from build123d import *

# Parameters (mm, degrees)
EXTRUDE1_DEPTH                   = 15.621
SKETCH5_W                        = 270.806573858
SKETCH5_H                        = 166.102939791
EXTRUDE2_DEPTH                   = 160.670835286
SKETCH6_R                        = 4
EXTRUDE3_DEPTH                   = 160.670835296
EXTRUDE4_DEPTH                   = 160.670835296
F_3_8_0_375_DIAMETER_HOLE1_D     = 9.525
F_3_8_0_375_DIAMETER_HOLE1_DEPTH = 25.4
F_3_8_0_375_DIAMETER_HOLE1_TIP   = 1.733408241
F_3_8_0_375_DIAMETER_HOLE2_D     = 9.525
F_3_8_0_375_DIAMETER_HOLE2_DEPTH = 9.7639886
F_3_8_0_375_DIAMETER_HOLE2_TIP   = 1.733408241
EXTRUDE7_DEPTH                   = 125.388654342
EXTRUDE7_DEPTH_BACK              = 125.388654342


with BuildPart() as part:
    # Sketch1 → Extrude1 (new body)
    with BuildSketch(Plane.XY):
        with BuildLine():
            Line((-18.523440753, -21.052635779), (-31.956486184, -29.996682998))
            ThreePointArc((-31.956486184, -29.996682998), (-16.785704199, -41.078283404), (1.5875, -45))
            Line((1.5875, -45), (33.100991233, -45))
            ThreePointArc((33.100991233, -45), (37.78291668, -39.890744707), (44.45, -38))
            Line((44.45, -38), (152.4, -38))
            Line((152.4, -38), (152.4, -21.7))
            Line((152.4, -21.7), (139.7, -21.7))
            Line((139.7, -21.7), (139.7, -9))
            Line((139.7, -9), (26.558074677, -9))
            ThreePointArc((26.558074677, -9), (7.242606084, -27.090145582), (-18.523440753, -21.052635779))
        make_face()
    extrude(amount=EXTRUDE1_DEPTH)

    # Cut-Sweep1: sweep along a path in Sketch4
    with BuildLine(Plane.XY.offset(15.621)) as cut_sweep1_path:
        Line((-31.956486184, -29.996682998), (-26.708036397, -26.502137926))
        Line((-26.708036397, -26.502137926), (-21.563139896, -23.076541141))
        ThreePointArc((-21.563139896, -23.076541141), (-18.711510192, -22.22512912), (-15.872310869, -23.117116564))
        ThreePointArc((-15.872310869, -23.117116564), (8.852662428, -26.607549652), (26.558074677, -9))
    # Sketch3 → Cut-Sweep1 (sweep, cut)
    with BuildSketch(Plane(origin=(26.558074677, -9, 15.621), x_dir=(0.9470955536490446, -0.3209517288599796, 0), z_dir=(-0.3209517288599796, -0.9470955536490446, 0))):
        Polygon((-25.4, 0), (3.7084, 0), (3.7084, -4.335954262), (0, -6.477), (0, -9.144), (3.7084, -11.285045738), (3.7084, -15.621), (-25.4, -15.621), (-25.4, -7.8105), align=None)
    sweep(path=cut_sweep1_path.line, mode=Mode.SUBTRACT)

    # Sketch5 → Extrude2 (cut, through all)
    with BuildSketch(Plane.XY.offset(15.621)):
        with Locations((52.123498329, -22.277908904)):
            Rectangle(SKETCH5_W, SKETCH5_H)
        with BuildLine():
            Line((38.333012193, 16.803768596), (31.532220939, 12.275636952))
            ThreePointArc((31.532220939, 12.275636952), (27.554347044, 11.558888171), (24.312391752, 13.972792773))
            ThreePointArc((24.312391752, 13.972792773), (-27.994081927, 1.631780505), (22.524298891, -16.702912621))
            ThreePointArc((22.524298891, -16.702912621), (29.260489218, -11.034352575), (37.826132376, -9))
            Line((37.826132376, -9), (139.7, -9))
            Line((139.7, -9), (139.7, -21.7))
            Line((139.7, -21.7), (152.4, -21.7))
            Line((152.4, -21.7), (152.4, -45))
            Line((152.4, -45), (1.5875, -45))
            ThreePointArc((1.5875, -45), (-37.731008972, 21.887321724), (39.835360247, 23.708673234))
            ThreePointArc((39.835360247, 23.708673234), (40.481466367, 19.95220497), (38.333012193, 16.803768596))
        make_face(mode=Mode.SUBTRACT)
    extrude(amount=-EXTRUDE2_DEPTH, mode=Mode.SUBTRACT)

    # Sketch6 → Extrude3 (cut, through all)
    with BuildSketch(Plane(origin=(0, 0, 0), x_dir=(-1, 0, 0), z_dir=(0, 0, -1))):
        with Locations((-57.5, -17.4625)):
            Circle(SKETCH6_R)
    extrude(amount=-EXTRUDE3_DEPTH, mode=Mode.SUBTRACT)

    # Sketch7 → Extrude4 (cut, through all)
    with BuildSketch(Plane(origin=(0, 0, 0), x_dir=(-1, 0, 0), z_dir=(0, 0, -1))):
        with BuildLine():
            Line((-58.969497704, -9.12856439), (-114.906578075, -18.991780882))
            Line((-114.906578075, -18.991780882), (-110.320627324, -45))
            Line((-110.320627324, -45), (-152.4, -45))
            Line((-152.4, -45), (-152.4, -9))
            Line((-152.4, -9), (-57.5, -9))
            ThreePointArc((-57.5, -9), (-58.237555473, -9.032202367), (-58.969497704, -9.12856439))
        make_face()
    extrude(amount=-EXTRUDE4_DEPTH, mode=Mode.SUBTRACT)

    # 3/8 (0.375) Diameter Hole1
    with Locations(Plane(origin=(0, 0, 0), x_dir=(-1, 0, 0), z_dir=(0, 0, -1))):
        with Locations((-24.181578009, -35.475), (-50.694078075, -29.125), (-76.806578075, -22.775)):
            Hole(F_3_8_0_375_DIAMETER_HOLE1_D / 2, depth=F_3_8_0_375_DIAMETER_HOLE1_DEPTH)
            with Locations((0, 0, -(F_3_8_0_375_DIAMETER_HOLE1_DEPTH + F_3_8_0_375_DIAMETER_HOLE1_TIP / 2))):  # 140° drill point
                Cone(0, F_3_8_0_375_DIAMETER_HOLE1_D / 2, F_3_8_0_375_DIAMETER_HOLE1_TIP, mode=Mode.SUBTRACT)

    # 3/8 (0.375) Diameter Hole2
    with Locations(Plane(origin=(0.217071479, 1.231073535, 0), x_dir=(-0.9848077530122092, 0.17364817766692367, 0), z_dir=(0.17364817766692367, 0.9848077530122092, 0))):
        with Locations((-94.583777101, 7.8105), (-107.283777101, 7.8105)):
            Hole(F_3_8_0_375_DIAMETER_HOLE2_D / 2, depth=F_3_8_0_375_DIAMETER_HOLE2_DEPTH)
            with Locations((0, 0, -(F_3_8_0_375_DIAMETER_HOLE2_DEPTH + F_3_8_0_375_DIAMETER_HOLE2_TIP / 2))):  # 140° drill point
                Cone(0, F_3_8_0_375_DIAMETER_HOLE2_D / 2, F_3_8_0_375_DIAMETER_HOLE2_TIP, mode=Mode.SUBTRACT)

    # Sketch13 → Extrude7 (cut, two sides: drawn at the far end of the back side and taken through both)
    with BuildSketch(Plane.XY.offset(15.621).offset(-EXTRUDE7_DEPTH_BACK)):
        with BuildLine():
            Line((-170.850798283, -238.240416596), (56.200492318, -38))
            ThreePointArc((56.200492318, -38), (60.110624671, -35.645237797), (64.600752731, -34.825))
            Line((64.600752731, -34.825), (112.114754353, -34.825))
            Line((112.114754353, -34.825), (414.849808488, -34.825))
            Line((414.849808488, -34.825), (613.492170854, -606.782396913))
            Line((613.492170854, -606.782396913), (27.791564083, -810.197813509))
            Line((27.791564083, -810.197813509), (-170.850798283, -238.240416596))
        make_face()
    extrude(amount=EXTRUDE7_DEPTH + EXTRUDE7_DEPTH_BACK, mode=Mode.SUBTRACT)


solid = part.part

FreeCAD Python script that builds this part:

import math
import FreeCAD as App
import Part
import Sketcher
from FreeCAD import Vector
Q = App.Units.Quantity


def add_polygon(sketch, points):
    """Adds a closed chain of lines whose ends are joined by coincident constraints."""
    first, n = sketch.GeometryCount, len(points)
    for a, b in zip(points, points[1:] + points[:1]):
        sketch.addGeometry(Part.LineSegment(App.Vector(*a, 0), App.Vector(*b, 0)), False)
    for i in range(n):
        sketch.addConstraint(Sketcher.Constraint("Coincident", first + i, 2, first + (i + 1) % n, 1))

doc = App.newDocument("Part")
body = doc.addObject("PartDesign::Body", "Body")

# Sketch on XY plane
sketch1 = body.newObject("Sketcher::SketchObject", "Sketch")
sketch1.AttachmentSupport = (doc.getObject("XY_Plane"), [""])
sketch1.MapMode = "FlatFace"
sketch1.addGeometry(Part.LineSegment(Vector(-18.523441, -21.052636, 0), Vector(-31.956486, -29.996683, 0)), False)
sketch1.addGeometry(Part.ArcOfCircle(Part.Circle(Vector(1.5875, 0, 0), Vector(0, 0, 1), 45), math.radians(-138.195351), math.radians(-90)), False)
sketch1.addGeometry(Part.LineSegment(Vector(1.5875, -45, 0), Vector(33.100991, -45, 0)), False)
sketch1.addGeometry(Part.ArcOfCircle(Part.Circle(Vector(44.45, -50.7, 0), Vector(0, 0, 1), 12.7), math.radians(90), math.radians(153.332069)), False)
sketch1.addGeometry(Part.LineSegment(Vector(44.45, -38, 0), Vector(152.4, -38, 0)), False)
sketch1.addGeometry(Part.LineSegment(Vector(152.4, -38, 0), Vector(152.4, -21.7, 0)), False)
sketch1.addGeometry(Part.LineSegment(Vector(152.4, -21.7, 0), Vector(139.7, -21.7, 0)), False)
sketch1.addGeometry(Part.LineSegment(Vector(139.7, -21.7, 0), Vector(139.7, -9, 0)), False)
sketch1.addGeometry(Part.LineSegment(Vector(139.7, -9, 0), Vector(26.558075, -9, 0)), False)
sketch1.addGeometry(Part.ArcOfCircle(Part.Circle(Vector(0, 0, 0), Vector(0, 0, 1), 28.0416), math.radians(-131.343362), math.radians(-18.720491)), False)
sketch1.addConstraint(Sketcher.Constraint("Coincident", 0, 2, 1, 1))
sketch1.addConstraint(Sketcher.Constraint("Tangent", 1, 2, 2, 1))
sketch1.addConstraint(Sketcher.Constraint("Coincident", 2, 2, 3, 2))
sketch1.addConstraint(Sketcher.Constraint("Tangent", 3, 1, 4, 1))
sketch1.addConstraint(Sketcher.Constraint("Coincident", 4, 2, 5, 1))
sketch1.addConstraint(Sketcher.Constraint("Coincident", 5, 2, 6, 1))
sketch1.addConstraint(Sketcher.Constraint("Coincident", 6, 2, 7, 1))
sketch1.addConstraint(Sketcher.Constraint("Coincident", 7, 2, 8, 1))
sketch1.addConstraint(Sketcher.Constraint("Coincident", 8, 2, 9, 2))
sketch1.addConstraint(Sketcher.Constraint("Coincident", 9, 1, 0, 1))
sketch1.addConstraint(Sketcher.Constraint("Horizontal", 2))
sketch1.addConstraint(Sketcher.Constraint("Horizontal", 4))
sketch1.addConstraint(Sketcher.Constraint("Vertical", 5))
sketch1.addConstraint(Sketcher.Constraint("Horizontal", 6))
sketch1.addConstraint(Sketcher.Constraint("Vertical", 7))
sketch1.addConstraint(Sketcher.Constraint("Horizontal", 8))
sketch1.addConstraint(Sketcher.Constraint("Coincident", 9, 3, -1, 1))
sketch1.addConstraint(Sketcher.Constraint("PointOnObject", 1, 3, -1))
sketch1.addConstraint(Sketcher.Constraint("Equal", 6, 7))
sketch1.addConstraint(Sketcher.Constraint("Radius", 3, Q("0.5 in")))
sketch1.addConstraint(Sketcher.Constraint("DistanceX", 6, 2, 6, 1, Q("0.5 in")))
sketch1.addConstraint(Sketcher.Constraint("DistanceX", -1, 1, 4, 2, Q("6 in")))
sketch1.addConstraint(Sketcher.Constraint("Radius", 9, Q("1.104 in")))
sketch1.addConstraint(Sketcher.Constraint("DistanceX", 4, 1, 4, 2, Q("4.25 in")))
sketch1.addConstraint(Sketcher.Constraint("Radius", 1, 45.0))
sketch1.addConstraint(Sketcher.Constraint("DistanceX", -1, 1, 1, 3, Q("0.0625 in")))
sketch1.addConstraint(Sketcher.Constraint("DistanceY", 5, 1, 5, 2, 16.3))
sketch1.addConstraint(Sketcher.Constraint("DistanceX", 2, 1, 2, 2, 31.513491))
sketch1.addConstraint(Sketcher.Constraint("DistanceX", 9, 1, -1, 1, 18.523441))
sketch1.addConstraint(Sketcher.Constraint("Distance", 0, 16.138237))
pad1 = body.newObject("PartDesign::Pad", "Pad")
pad1.Profile = sketch1
pad1.Length = Q("0.615 in")

# Sketch on an angled plane
sketch2 = body.newObject("Sketcher::SketchObject", "Sketch001")
sketch2.Placement = App.Placement(Vector(26.558075, -9, 15.621), App.Rotation(Vector(0.947095554, -0.320951729, 0), Vector(0, 0, 1.000000001), Vector(-0.320951729, -0.947095554, 0), "ZXY"))
add_polygon(sketch2, [(3.7084, 0), (-25.4, 0), (-25.4, -15.621), (3.7084, -15.621), (3.7084, -11.285046), (0, -9.144), (0, -6.477), (3.7084, -4.335954)])  # lines 0-7
sketch2.addConstraint(Sketcher.Constraint("Horizontal", 0))
sketch2.addConstraint(Sketcher.Constraint("Vertical", 1))
sketch2.addConstraint(Sketcher.Constraint("Horizontal", 2))
sketch2.addConstraint(Sketcher.Constraint("Vertical", 3))
sketch2.addConstraint(Sketcher.Constraint("Vertical", 5))
sketch2.addConstraint(Sketcher.Constraint("Vertical", 7))
sketch2.addConstraint(Sketcher.Constraint("PointOnObject", 0, 2, -1))
sketch2.addConstraint(Sketcher.Constraint("PointOnObject", 4, 2, -2))
sketch2.addConstraint(Sketcher.Constraint("Vertical", 3, 2, 6, 2))
sketch2.addConstraint(Sketcher.Constraint("Equal", 3, 7))
sketch2.addConstraint(Sketcher.Constraint("Equal", 4, 6))
sketch2.addConstraint(Sketcher.Constraint("DistanceX", 0, 2, -1, 1, Q("1 in")))
sketch2.addConstraint(Sketcher.Constraint("Angle", 4, Q("150 deg")))
sketch2.addConstraint(Sketcher.Constraint("DistanceX", 0, 2, 0, 1, Q("1.146 in")))
sketch2.addConstraint(Sketcher.Constraint("DistanceY", 1, 2, 1, 1, Q("0.615 in")))
sketch2.addConstraint(Sketcher.Constraint("DistanceY", 5, 1, 5, 2, Q("0.105 in")))

# Sketch on XY plane
sketch3 = body.newObject("Sketcher::SketchObject", "Sketch002")
sketch3.AttachmentSupport = (doc.getObject("XY_Plane"), [""])
sketch3.MapMode = "FlatFace"
sketch3.AttachmentOffset = App.Placement(Vector(0, 0, 0.615 * 25.4), App.Rotation())
sketch3.addGeometry(Part.LineSegment(Vector(-31.956486, -29.996683, 0), Vector(-26.708036, -26.502138, 0)), False)
sketch3.addGeometry(Part.LineSegment(Vector(-26.708036, -26.502138, 0), Vector(-21.56314, -23.076541, 0)), False)
sketch3.addGeometry(Part.ArcOfCircle(Part.Circle(Vector(-18.74773, -27.305, 0), Vector(0, 0, 1), 5.08), math.radians(55.526341), math.radians(123.656638)), False)
sketch3.addGeometry(Part.ArcOfCircle(Part.Circle(Vector(0, 0, 0), Vector(0, 0, 1), 28.0416), math.radians(-124.473659), math.radians(-18.720491)), False)
sketch3.addConstraint(Sketcher.Constraint("Coincident", 0, 2, 1, 1))
sketch3.addConstraint(Sketcher.Constraint("Tangent", 1, 2, 2, 2))
sketch3.addConstraint(Sketcher.Constraint("Tangent", 2, 1, 3, 1))
sketch3.addConstraint(Sketcher.Constraint("Coincident", 3, 3, -1, 1))
sketch3.addConstraint(Sketcher.Constraint("Parallel", 0, 1))
sketch3.addConstraint(Sketcher.Constraint("Radius", 2, Q("0.2 in")))
sketch3.addConstraint(Sketcher.Constraint("Radius", 3, Q("1.104 in")))
sketch3.addConstraint(Sketcher.Constraint("DistanceY", 2, 3, -1, 1, Q("1.075 in")))
sketch3.addConstraint(Sketcher.Constraint("Distance", 0, 6.3054))
sketch3.addConstraint(Sketcher.Constraint("DistanceY", 3, 2, -1, 1, 9.0))
sketch3.addConstraint(Sketcher.Constraint("DistanceX", 1, 2, -1, 1, 21.56314))
sketch3.addConstraint(Sketcher.Constraint("DistanceY", 0, 1, 1, 2, 6.920142))
doc.recompute()

subtractivepipe = body.newObject("PartDesign::SubtractivePipe", "SubtractivePipe")
subtractivepipe.Profile = sketch2
subtractivepipe.Spine = (sketch3, ["Edge1", "Edge2", "Edge3", "Edge4"])

# Sketch on XY plane
sketch4 = body.newObject("Sketcher::SketchObject", "Sketch003")
sketch4.AttachmentSupport = (doc.getObject("XY_Plane"), [""])
sketch4.MapMode = "FlatFace"
sketch4.AttachmentOffset = App.Placement(Vector(0, 0, 0.615 * 25.4), App.Rotation())
add_polygon(sketch4, [(-83.279789, 60.773561), (-83.279789, -105.329379), (187.526785, -105.329379), (187.526785, 60.773561)])  # lines 0-3
sketch4.addGeometry(Part.ArcOfCircle(Part.Circle(Vector(35.517602, 21.032227, 0), Vector(0, 0, 1), 5.08), math.radians(-56.343362), math.radians(31.793502)), False)  # 4
sketch4.addGeometry(Part.LineSegment(Vector(38.333012, 16.803769, 0), Vector(31.532221, 12.275637, 0)), False)  # 5
sketch4.addGeometry(Part.ArcOfCircle(Part.Circle(Vector(28.716811, 16.504096, 0), Vector(0, 0, 1), 5.08), math.radians(-150.113201), math.radians(-56.343362)), False)  # 6
sketch4.addGeometry(Part.ArcOfCircle(Part.Circle(Vector(0, 0, 0), Vector(0, 0, 1), 28.0416), math.radians(29.886799), math.radians(323.441186)), False)  # 7
sketch4.addGeometry(Part.ArcOfCircle(Part.Circle(Vector(37.826132, -28.05, 0), Vector(0, 0, 1), 19.05), math.radians(90), math.radians(143.441186)), False)  # 8
sketch4.addGeometry(Part.LineSegment(Vector(37.826132, -9, 0), Vector(139.7, -9, 0)), False)  # 9
sketch4.addGeometry(Part.LineSegment(Vector(139.7, -9, 0), Vector(139.7, -21.7, 0)), False)  # 10
sketch4.addGeometry(Part.LineSegment(Vector(139.7, -21.7, 0), Vector(152.4, -21.7, 0)), False)  # 11
sketch4.addGeometry(Part.LineSegment(Vector(152.4, -21.7, 0), Vector(152.4, -45, 0)), False)  # 12
sketch4.addGeometry(Part.LineSegment(Vector(152.4, -45, 0), Vector(1.5875, -45, 0)), False)  # 13
sketch4.addGeometry(Part.ArcOfCircle(Part.Circle(Vector(1.5875, 0, 0), Vector(0, 0, 1), 45), math.radians(31.793502), math.radians(270)), False)  # 14
sketch4.addConstraint(Sketcher.Constraint("Coincident", 4, 1, 5, 1))
sketch4.addConstraint(Sketcher.Constraint("Coincident", 5, 2, 6, 2))
sketch4.addConstraint(Sketcher.Constraint("Coincident", 6, 1, 7, 1))
sketch4.addConstraint(Sketcher.Constraint("Coincident", 7, 2, 8, 2))
sketch4.addConstraint(Sketcher.Constraint("Coincident", 8, 1, 9, 1))
sketch4.addConstraint(Sketcher.Constraint("Coincident", 9, 2, 10, 1))
sketch4.addConstraint(Sketcher.Constraint("Coincident", 10, 2, 11, 1))
sketch4.addConstraint(Sketcher.Constraint("Coincident", 11, 2, 12, 1))
sketch4.addConstraint(Sketcher.Constraint("Coincident", 12, 2, 13, 1))
sketch4.addConstraint(Sketcher.Constraint("Coincident", 13, 2, 14, 2))
sketch4.addConstraint(Sketcher.Constraint("Coincident", 14, 1, 4, 2))
sketch4.addConstraint(Sketcher.Constraint("Vertical", 0))
sketch4.addConstraint(Sketcher.Constraint("Horizontal", 1))
sketch4.addConstraint(Sketcher.Constraint("Vertical", 2))
sketch4.addConstraint(Sketcher.Constraint("Horizontal", 3))
sketch4.addConstraint(Sketcher.Constraint("Horizontal", 9))
sketch4.addConstraint(Sketcher.Constraint("Vertical", 10))
sketch4.addConstraint(Sketcher.Constraint("Horizontal", 11))
sketch4.addConstraint(Sketcher.Constraint("Vertical", 12))
sketch4.addConstraint(Sketcher.Constraint("Horizontal", 13))
sketch4.addConstraint(Sketcher.Constraint("Coincident", 7, 3, -1, 1))
sketch4.addConstraint(Sketcher.Constraint("PointOnObject", 14, 3, -1))
sketch4.addConstraint(Sketcher.Constraint("Radius", 4, Q("0.2 in")))
sketch4.addConstraint(Sketcher.Constraint("Radius", 6, Q("0.2 in")))
sketch4.addConstraint(Sketcher.Constraint("Radius", 8, Q("0.75 in")))
sketch4.addConstraint(Sketcher.Constraint("DistanceX", 11, 1, 11, 2, Q("0.5 in")))
sketch4.addConstraint(Sketcher.Constraint("DistanceY", 10, 2, 10, 1, Q("0.5 in")))
sketch4.addConstraint(Sketcher.Constraint("DistanceX", -1, 1, 11, 2, Q("6 in")))
sketch4.addConstraint(Sketcher.Constraint("Radius", 7, Q("1.104 in")))
sketch4.addConstraint(Sketcher.Constraint("DistanceX", 13, 2, 13, 1, Q("5.9375 in")))
sketch4.addConstraint(Sketcher.Constraint("Radius", 14, 45.0))
sketch4.addConstraint(Sketcher.Constraint("DistanceX", -1, 1, 14, 3, Q("0.0625 in")))
sketch4.addConstraint(Sketcher.Constraint("DistanceY", 12, 2, 12, 1, 23.3))
sketch4.addConstraint(Sketcher.Constraint("DistanceY", 0, 2, 0, 1, 166.10294))
sketch4.addConstraint(Sketcher.Constraint("DistanceX", -1, 1, 4, 3, 35.517602))
sketch4.addConstraint(Sketcher.Constraint("DistanceX", -1, 1, 7, 2, 22.524299))
sketch4.addConstraint(Sketcher.Constraint("DistanceX", 0, 2, 6, 3, 111.996599))
sketch4.addConstraint(Sketcher.Constraint("DistanceX", 6, 3, 4, 1, 9.616202))
sketch4.addConstraint(Sketcher.Constraint("DistanceX", 1, 1, 1, 2, 270.806574))
sketch4.addConstraint(Sketcher.Constraint("DistanceX", 9, 1, 9, 2, 101.873868))
sketch4.addConstraint(Sketcher.Constraint("DistanceX", -1, 1, 6, 3, 28.716811))
sketch4.addConstraint(Sketcher.Constraint("DistanceY", 0, 2, -1, 1, 105.329379))
sketch4.addConstraint(Sketcher.Constraint("DistanceX", -1, 1, 5, 2, 31.532221))
sketch4.addConstraint(Sketcher.Constraint("DistanceX", -1, 1, 6, 1, 24.312392))
sketch4.addConstraint(Sketcher.Constraint("DistanceX", -1, 1, 14, 1, 39.83536))
pocket1 = body.newObject("PartDesign::Pocket", "Pocket")
pocket1.Profile = sketch4
pocket1.Type = "ThroughAll"

# Sketch on XY plane
sketch5 = body.newObject("Sketcher::SketchObject", "Sketch004")
sketch5.AttachmentSupport = (doc.getObject("XY_Plane"), [""])
sketch5.MapMode = "FlatFace"
sketch5.addGeometry(Part.Circle(Vector(57.5, -17.4625, 0), Vector(0, 0, 1), 4), False)
sketch5.addConstraint(Sketcher.Constraint("Diameter", 0, 8.0))
sketch5.addConstraint(Sketcher.Constraint("DistanceY", 0, 3, -1, 1, Q("0.6875 in")))
sketch5.addConstraint(Sketcher.Constraint("DistanceX", -1, 1, 0, 3, 57.5))
pocket2 = body.newObject("PartDesign::Pocket", "Pocket001")
pocket2.Profile = sketch5
pocket2.Type = "ThroughAll"
pocket2.Reversed = True

# Sketch on XY plane
sketch6 = body.newObject("Sketcher::SketchObject", "Sketch005")
sketch6.AttachmentSupport = (doc.getObject("XY_Plane"), [""])
sketch6.MapMode = "FlatFace"
sketch6.addGeometry(Part.LineSegment(Vector(114.906578, -18.991781, 0), Vector(58.969498, -9.128564, 0)), False)
sketch6.addGeometry(Part.ArcOfCircle(Part.Circle(Vector(57.5, -17.4625, 0), Vector(0, 0, 1), 8.4625), math.radians(80), math.radians(90)), False)
sketch6.addGeometry(Part.LineSegment(Vector(57.5, -9, 0), Vector(152.4, -9, 0)), False)
sketch6.addGeometry(Part.LineSegment(Vector(152.4, -9, 0), Vector(152.4, -45, 0)), False)
sketch6.addGeometry(Part.LineSegment(Vector(152.4, -45, 0), Vector(110.320627, -45, 0)), False)
sketch6.addGeometry(Part.LineSegment(Vector(110.320627, -45, 0), Vector(114.906578, -18.991781, 0)), False)
sketch6.addConstraint(Sketcher.Constraint("Tangent", 0, 2, 1, 1))
sketch6.addConstraint(Sketcher.Constraint("Tangent", 1, 2, 2, 1))
sketch6.addConstraint(Sketcher.Constraint("Coincident", 2, 2, 3, 1))
sketch6.addConstraint(Sketcher.Constraint("Coincident", 3, 2, 4, 1))
sketch6.addConstraint(Sketcher.Constraint("Coincident", 4, 2, 5, 1))
sketch6.addConstraint(Sketcher.Constraint("Coincident", 5, 2, 0, 1))
sketch6.addConstraint(Sketcher.Constraint("Horizontal", 2))
sketch6.addConstraint(Sketcher.Constraint("Vertical", 3))
sketch6.addConstraint(Sketcher.Constraint("Horizontal", 4))
sketch6.addConstraint(Sketcher.Constraint("Perpendicular", 0, 5))
sketch6.addConstraint(Sketcher.Constraint("DistanceX", -1, 1, 2, 2, Q("6 in")))
sketch6.addConstraint(Sketcher.Constraint("Angle", 0, Q("170 deg")))
sketch6.addConstraint(Sketcher.Constraint("Radius", 1, 8.4625))
sketch6.addConstraint(Sketcher.Constraint("DistanceY", 1, 3, -1, 1, Q("0.6875 in")))
sketch6.addConstraint(Sketcher.Constraint("DistanceX", 2, 1, 2, 2, 94.9))
sketch6.addConstraint(Sketcher.Constraint("DistanceY", 3, 2, 3, 1, 36.0))
sketch6.addConstraint(Sketcher.Constraint("Distance", 0, 56.8))
pocket3 = body.newObject("PartDesign::Pocket", "Pocket002")
pocket3.Profile = sketch6
pocket3.Type = "ThroughAll"
pocket3.Reversed = True

# Sketch on XY plane
sketch7 = body.newObject("Sketcher::SketchObject", "Sketch006")
sketch7.AttachmentSupport = (doc.getObject("XY_Plane"), [""])
sketch7.MapMode = "FlatFace"
sketch7.addGeometry(Part.Circle(Vector(24.181578, -35.475, 0), Vector(0, 0, 1), 4.7625), False)
sketch7.addGeometry(Part.Circle(Vector(50.694078, -29.125, 0), Vector(0, 0, 1), 4.7625), False)
sketch7.addGeometry(Part.Circle(Vector(76.806578, -22.775, 0), Vector(0, 0, 1), 4.7625), False)
sketch7.addConstraint(Sketcher.Constraint("Equal", 0, 1))
sketch7.addConstraint(Sketcher.Constraint("Equal", 1, 2))
sketch7.addConstraint(Sketcher.Constraint("Diameter", 0, Q("0.375 in")))
sketch7.addConstraint(Sketcher.Constraint("DistanceY", 0, 3, 2, 3, Q("0.5 in")))
sketch7.addConstraint(Sketcher.Constraint("DistanceY", 0, 3, 1, 3, Q("0.25 in")))
sketch7.addConstraint(Sketcher.Constraint("DistanceY", 0, 3, -1, 1, 35.475))
sketch7.addConstraint(Sketcher.Constraint("DistanceX", 0, 3, 1, 3, 26.5125))
sketch7.addConstraint(Sketcher.Constraint("DistanceX", 1, 3, 2, 3, 26.1125))
sketch7.addConstraint(Sketcher.Constraint("DistanceX", -1, 1, 0, 3, 24.181578))
doc.recompute()
hole = body.newObject("PartDesign::Hole", "Hole")
hole.Profile = sketch7
hole.ThreadType = "None"
hole.Diameter = Q("0.375 in")
hole.DepthType = "Dimension"
hole.Depth = Q("1 in")
hole.DrillPoint = "Angled"
hole.DrillPointAngle = 140
hole.Reversed = True

# Sketch on an angled plane
sketch8 = body.newObject("Sketcher::SketchObject", "Sketch007")
sketch8.Placement = App.Placement(Vector(0.217071, 1.231074, 0), App.Rotation(Vector(-0.984807753, 0.173648178, 0), Vector(0, 0, 1), Vector(0.173648178, 0.984807753, 0), "ZXY"))
sketch8.addGeometry(Part.Circle(Vector(-94.583777, 7.8105, 0), Vector(0, 0, 1), 4.7625), False)
sketch8.addGeometry(Part.Circle(Vector(-107.283777, 7.8105, 0), Vector(0, 0, 1), 4.7625), False)
sketch8.addConstraint(Sketcher.Constraint("Equal", 0, 1))
sketch8.addConstraint(Sketcher.Constraint("Horizontal", 0, 3, 1, 3))
sketch8.addConstraint(Sketcher.Constraint("Diameter", 0, Q("0.375 in")))
sketch8.addConstraint(Sketcher.Constraint("DistanceX", 1, 3, 0, 3, Q("0.5 in")))
sketch8.addConstraint(Sketcher.Constraint("DistanceY", -1, 1, 0, 3, Q("0.3075 in")))
sketch8.addConstraint(Sketcher.Constraint("DistanceX", 0, 3, -1, 1, 94.583777))
doc.recompute()
hole2 = body.newObject("PartDesign::Hole", "Hole001")
hole2.Profile = sketch8
hole2.ThreadType = "None"
hole2.Diameter = Q("0.375 in")
hole2.DepthType = "Dimension"
hole2.Depth = 9.763989
hole2.DrillPoint = "Angled"
hole2.DrillPointAngle = 140

# Sketch on XY plane
sketch9 = body.newObject("Sketcher::SketchObject", "Sketch008")
sketch9.AttachmentSupport = (doc.getObject("XY_Plane"), [""])
sketch9.MapMode = "FlatFace"
sketch9.AttachmentOffset = App.Placement(Vector(0, 0, 0.615 * 25.4), App.Rotation())
sketch9.addGeometry(Part.LineSegment(Vector(56.200492, -38, 0), Vector(-170.850798, -238.240417, 0)), False)
sketch9.addGeometry(Part.LineSegment(Vector(-170.850798, -238.240417, 0), Vector(27.791564, -810.197814, 0)), False)
sketch9.addGeometry(Part.LineSegment(Vector(27.791564, -810.197814, 0), Vector(613.492171, -606.782397, 0)), False)
sketch9.addGeometry(Part.LineSegment(Vector(613.492171, -606.782397, 0), Vector(414.849808, -34.825, 0)), False)
sketch9.addGeometry(Part.LineSegment(Vector(414.849808, -34.825, 0), Vector(64.600753, -34.825, 0)), False)
sketch9.addGeometry(Part.ArcOfCircle(Part.Circle(Vector(64.600753, -47.525, 0), Vector(0, 0, 1), 12.7), math.radians(90), math.radians(131.409622)), False)
sketch9.addConstraint(Sketcher.Constraint("Coincident", 0, 2, 1, 1))
sketch9.addConstraint(Sketcher.Constraint("Coincident", 1, 2, 2, 1))
sketch9.addConstraint(Sketcher.Constraint("Coincident", 2, 2, 3, 1))
sketch9.addConstraint(Sketcher.Constraint("Coincident", 3, 2, 4, 1))
sketch9.addConstraint(Sketcher.Constraint("Tangent", 4, 2, 5, 1))
sketch9.addConstraint(Sketcher.Constraint("Tangent", 5, 2, 0, 1))
sketch9.addConstraint(Sketcher.Constraint("Horizontal", 4))
sketch9.addConstraint(Sketcher.Constraint("Perpendicular", 1, 2))
sketch9.addConstraint(Sketcher.Constraint("Perpendicular", 2, 3))
sketch9.addConstraint(Sketcher.Constraint("Equal", 1, 3))
sketch9.addConstraint(Sketcher.Constraint("Radius", 5, Q("0.5 in")))
sketch9.addConstraint(Sketcher.Constraint("DistanceY", 5, 3, -1, 1, 47.525))
sketch9.addConstraint(Sketcher.Constraint("DistanceX", 0, 2, -1, 1, 170.850798))
sketch9.addConstraint(Sketcher.Constraint("Distance", 1, 605.470108))
sketch9.addConstraint(Sketcher.Constraint("DistanceX", 4, 2, 4, 1, 350.249056))
sketch9.addConstraint(Sketcher.Constraint("DistanceX", -1, 1, 2, 2, 613.492171))
sketch9.addConstraint(Sketcher.Constraint("DistanceX", -1, 1, 3, 2, 414.849808))
pocket4 = body.newObject("PartDesign::Pocket", "Pocket003")
pocket4.Profile = sketch9
pocket4.Type = "ThroughAll"
pocket4.Midplane = True

doc.recompute()
